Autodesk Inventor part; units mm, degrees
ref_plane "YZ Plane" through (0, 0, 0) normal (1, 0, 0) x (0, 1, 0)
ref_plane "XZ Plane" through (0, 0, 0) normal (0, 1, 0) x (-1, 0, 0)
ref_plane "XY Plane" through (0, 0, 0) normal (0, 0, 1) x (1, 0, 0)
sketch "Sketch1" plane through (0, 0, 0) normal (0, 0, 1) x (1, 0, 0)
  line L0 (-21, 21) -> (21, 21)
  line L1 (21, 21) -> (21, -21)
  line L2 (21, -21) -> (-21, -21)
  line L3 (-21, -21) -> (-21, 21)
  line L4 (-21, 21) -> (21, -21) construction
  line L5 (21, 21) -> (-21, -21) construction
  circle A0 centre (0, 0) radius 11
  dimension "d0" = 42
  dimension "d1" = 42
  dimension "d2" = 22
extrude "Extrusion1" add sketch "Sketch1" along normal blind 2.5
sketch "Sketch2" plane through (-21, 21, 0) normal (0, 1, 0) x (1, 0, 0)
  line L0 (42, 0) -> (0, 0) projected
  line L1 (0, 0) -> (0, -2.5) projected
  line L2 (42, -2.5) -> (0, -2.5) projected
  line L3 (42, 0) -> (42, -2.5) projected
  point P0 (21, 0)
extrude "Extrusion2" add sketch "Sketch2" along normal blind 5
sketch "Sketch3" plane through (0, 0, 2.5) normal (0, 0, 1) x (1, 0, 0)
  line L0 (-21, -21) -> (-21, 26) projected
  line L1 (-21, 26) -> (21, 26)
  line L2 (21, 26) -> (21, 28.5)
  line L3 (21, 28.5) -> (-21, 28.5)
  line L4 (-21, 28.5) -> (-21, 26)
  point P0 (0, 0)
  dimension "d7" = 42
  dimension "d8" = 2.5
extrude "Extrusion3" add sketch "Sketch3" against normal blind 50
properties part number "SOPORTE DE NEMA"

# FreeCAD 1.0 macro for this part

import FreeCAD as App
import Part
import Sketcher
Q = App.Units.Quantity

doc = App.newDocument("Part")
params = doc.addObject("Spreadsheet::Sheet", "Params")
for row, (alias, value) in enumerate([
    ("sketch1_diameter", "22 mm"),
    ("sketch1_width", "42 mm"),
    ("pad1_length", "2.5 mm"),
    ("sketch2_width", "42 mm"),
    ("sketch2_height", "2.5 mm"),
    ("pad2_length", "5 mm"),
    ("sketch3_width", "42 mm"),
    ("sketch3_height", "2.5 mm"),
    ("pad3_length", "50 mm"),
], start=1):
    params.set(f"A{row}", alias)
    params.set(f"B{row}", "=" + value)
    params.setAlias(f"B{row}", alias)

body = doc.addObject("PartDesign::Body", "Body")

sketch1 = doc.addObject("Sketcher::SketchObject", "Sketch")
body.addObject(sketch1)
sketch1.AttachmentSupport = (doc.XY_Plane, [""])
sketch1.MapMode = "FlatFace"
sketch1.addGeometry([
    Part.LineSegment(App.Vector(21, 21, 0), App.Vector(-21, 21, 0)),
    Part.LineSegment(App.Vector(-21, 21, 0), App.Vector(-21, -21, 0)),
    Part.LineSegment(App.Vector(-21, -21, 0), App.Vector(21, -21, 0)),
    Part.LineSegment(App.Vector(21, -21, 0), App.Vector(21, 21, 0)),
    Part.Circle(App.Vector(0, 0, 0), App.Vector(0, 0, 1), 11),
], False)
sketch1.addConstraint([
    Sketcher.Constraint("Coincident", 0, 2, 1, 1),
    Sketcher.Constraint("Coincident", 1, 2, 2, 1),
    Sketcher.Constraint("Coincident", 2, 2, 3, 1),
    Sketcher.Constraint("Coincident", 3, 2, 0, 1),
    Sketcher.Constraint("Horizontal", 0),
    Sketcher.Constraint("Vertical", 1),
    Sketcher.Constraint("Horizontal", 2),
    Sketcher.Constraint("Vertical", 3),
    Sketcher.Constraint("Coincident", 4, 3, -1, 1),
    Sketcher.Constraint("Symmetric", 0, 2, 2, 2, -1, 1),
    Sketcher.Constraint("Equal", 2, 1),
    Sketcher.Constraint("Diameter", 4, Q("22 mm")),
    Sketcher.Constraint("DistanceX", 0, 2, 0, 1, Q("42 mm")),
])
sketch1.setExpression("Constraints[11]", "Params.sketch1_diameter")
sketch1.setExpression("Constraints[12]", "Params.sketch1_width")
pad1 = doc.addObject("PartDesign::Pad", "Pad")
body.addObject(pad1)
pad1.Profile = sketch1
pad1.setExpression("Length", "Params.pad1_length")

sketch2 = doc.addObject("Sketcher::SketchObject", "Sketch001")
body.addObject(sketch2)
sketch2.AttachmentSupport = (doc.XZ_Plane, [""])
sketch2.MapMode = "FlatFace"
sketch2.AttachmentOffset = App.Placement(App.Vector(0, 0, -21), App.Rotation())
sketch2.addGeometry([
    Part.LineSegment(App.Vector(21, 2.5, 0), App.Vector(21, 0, 0)),
    Part.LineSegment(App.Vector(21, 0, 0), App.Vector(-21, 0, 0)),
    Part.LineSegment(App.Vector(-21, 0, 0), App.Vector(-21, 2.5, 0)),
    Part.LineSegment(App.Vector(-21, 2.5, 0), App.Vector(21, 2.5, 0)),
], False)
sketch2.addConstraint([
    Sketcher.Constraint("Coincident", 0, 2, 1, 1),
    Sketcher.Constraint("Coincident", 1, 2, 2, 1),
    Sketcher.Constraint("Coincident", 2, 2, 3, 1),
    Sketcher.Constraint("Coincident", 3, 2, 0, 1),
    Sketcher.Constraint("Vertical", 0),
    Sketcher.Constraint("Horizontal", 1),
    Sketcher.Constraint("Vertical", 2),
    Sketcher.Constraint("Horizontal", 3),
    Sketcher.Constraint("Symmetric", 0, 2, 1, 2, -1, 1),
    Sketcher.Constraint("DistanceX", 1, 2, 1, 1, Q("42 mm")),
    Sketcher.Constraint("DistanceY", 0, 2, 0, 1, Q("2.5 mm")),
])
sketch2.setExpression("Constraints[9]", "Params.sketch2_width")
sketch2.setExpression("Constraints[10]", "Params.sketch2_height")
pad2 = doc.addObject("PartDesign::Pad", "Pad001")
body.addObject(pad2)
pad2.Profile = sketch2
pad2.setExpression("Length", "Params.pad2_length")
pad2.Reversed = True

sketch3 = doc.addObject("Sketcher::SketchObject", "Sketch002")
body.addObject(sketch3)
sketch3.AttachmentSupport = (doc.XY_Plane, [""])
sketch3.MapMode = "FlatFace"
sketch3.AttachmentOffset = App.Placement(App.Vector(0, 0, 2.5), App.Rotation())
sketch3.addGeometry([
    Part.LineSegment(App.Vector(-21, 28.5, 0), App.Vector(-21, 26, 0)),
    Part.LineSegment(App.Vector(-21, 26, 0), App.Vector(21, 26, 0)),
    Part.LineSegment(App.Vector(21, 26, 0), App.Vector(21, 28.5, 0)),
    Part.LineSegment(App.Vector(21, 28.5, 0), App.Vector(-21, 28.5, 0)),
], False)
sketch3.addConstraint([
    Sketcher.Constraint("Coincident", 0, 2, 1, 1),
    Sketcher.Constraint("Coincident", 1, 2, 2, 1),
    Sketcher.Constraint("Coincident", 2, 2, 3, 1),
    Sketcher.Constraint("Coincident", 3, 2, 0, 1),
    Sketcher.Constraint("Vertical", 0),
    Sketcher.Constraint("Horizontal", 1),
    Sketcher.Constraint("Vertical", 2),
    Sketcher.Constraint("Horizontal", 3),
    Sketcher.Constraint("DistanceX", 1, 1, 1, 2, Q("42 mm")),
    Sketcher.Constraint("DistanceY", 0, 2, 0, 1, Q("2.5 mm")),
    Sketcher.Constraint("DistanceX", 0, 2, -1, 1, Q("21 mm")),
    Sketcher.Constraint("DistanceY", -1, 1, 0, 2, Q("26 mm")),
])
sketch3.setExpression("Constraints[8]", "Params.sketch3_width")
sketch3.setExpression("Constraints[9]", "Params.sketch3_height")
pad3 = doc.addObject("PartDesign::Pad", "Pad002")
body.addObject(pad3)
pad3.Profile = sketch3
pad3.setExpression("Length", "Params.pad3_length")
pad3.Reversed = True

doc.recompute()
